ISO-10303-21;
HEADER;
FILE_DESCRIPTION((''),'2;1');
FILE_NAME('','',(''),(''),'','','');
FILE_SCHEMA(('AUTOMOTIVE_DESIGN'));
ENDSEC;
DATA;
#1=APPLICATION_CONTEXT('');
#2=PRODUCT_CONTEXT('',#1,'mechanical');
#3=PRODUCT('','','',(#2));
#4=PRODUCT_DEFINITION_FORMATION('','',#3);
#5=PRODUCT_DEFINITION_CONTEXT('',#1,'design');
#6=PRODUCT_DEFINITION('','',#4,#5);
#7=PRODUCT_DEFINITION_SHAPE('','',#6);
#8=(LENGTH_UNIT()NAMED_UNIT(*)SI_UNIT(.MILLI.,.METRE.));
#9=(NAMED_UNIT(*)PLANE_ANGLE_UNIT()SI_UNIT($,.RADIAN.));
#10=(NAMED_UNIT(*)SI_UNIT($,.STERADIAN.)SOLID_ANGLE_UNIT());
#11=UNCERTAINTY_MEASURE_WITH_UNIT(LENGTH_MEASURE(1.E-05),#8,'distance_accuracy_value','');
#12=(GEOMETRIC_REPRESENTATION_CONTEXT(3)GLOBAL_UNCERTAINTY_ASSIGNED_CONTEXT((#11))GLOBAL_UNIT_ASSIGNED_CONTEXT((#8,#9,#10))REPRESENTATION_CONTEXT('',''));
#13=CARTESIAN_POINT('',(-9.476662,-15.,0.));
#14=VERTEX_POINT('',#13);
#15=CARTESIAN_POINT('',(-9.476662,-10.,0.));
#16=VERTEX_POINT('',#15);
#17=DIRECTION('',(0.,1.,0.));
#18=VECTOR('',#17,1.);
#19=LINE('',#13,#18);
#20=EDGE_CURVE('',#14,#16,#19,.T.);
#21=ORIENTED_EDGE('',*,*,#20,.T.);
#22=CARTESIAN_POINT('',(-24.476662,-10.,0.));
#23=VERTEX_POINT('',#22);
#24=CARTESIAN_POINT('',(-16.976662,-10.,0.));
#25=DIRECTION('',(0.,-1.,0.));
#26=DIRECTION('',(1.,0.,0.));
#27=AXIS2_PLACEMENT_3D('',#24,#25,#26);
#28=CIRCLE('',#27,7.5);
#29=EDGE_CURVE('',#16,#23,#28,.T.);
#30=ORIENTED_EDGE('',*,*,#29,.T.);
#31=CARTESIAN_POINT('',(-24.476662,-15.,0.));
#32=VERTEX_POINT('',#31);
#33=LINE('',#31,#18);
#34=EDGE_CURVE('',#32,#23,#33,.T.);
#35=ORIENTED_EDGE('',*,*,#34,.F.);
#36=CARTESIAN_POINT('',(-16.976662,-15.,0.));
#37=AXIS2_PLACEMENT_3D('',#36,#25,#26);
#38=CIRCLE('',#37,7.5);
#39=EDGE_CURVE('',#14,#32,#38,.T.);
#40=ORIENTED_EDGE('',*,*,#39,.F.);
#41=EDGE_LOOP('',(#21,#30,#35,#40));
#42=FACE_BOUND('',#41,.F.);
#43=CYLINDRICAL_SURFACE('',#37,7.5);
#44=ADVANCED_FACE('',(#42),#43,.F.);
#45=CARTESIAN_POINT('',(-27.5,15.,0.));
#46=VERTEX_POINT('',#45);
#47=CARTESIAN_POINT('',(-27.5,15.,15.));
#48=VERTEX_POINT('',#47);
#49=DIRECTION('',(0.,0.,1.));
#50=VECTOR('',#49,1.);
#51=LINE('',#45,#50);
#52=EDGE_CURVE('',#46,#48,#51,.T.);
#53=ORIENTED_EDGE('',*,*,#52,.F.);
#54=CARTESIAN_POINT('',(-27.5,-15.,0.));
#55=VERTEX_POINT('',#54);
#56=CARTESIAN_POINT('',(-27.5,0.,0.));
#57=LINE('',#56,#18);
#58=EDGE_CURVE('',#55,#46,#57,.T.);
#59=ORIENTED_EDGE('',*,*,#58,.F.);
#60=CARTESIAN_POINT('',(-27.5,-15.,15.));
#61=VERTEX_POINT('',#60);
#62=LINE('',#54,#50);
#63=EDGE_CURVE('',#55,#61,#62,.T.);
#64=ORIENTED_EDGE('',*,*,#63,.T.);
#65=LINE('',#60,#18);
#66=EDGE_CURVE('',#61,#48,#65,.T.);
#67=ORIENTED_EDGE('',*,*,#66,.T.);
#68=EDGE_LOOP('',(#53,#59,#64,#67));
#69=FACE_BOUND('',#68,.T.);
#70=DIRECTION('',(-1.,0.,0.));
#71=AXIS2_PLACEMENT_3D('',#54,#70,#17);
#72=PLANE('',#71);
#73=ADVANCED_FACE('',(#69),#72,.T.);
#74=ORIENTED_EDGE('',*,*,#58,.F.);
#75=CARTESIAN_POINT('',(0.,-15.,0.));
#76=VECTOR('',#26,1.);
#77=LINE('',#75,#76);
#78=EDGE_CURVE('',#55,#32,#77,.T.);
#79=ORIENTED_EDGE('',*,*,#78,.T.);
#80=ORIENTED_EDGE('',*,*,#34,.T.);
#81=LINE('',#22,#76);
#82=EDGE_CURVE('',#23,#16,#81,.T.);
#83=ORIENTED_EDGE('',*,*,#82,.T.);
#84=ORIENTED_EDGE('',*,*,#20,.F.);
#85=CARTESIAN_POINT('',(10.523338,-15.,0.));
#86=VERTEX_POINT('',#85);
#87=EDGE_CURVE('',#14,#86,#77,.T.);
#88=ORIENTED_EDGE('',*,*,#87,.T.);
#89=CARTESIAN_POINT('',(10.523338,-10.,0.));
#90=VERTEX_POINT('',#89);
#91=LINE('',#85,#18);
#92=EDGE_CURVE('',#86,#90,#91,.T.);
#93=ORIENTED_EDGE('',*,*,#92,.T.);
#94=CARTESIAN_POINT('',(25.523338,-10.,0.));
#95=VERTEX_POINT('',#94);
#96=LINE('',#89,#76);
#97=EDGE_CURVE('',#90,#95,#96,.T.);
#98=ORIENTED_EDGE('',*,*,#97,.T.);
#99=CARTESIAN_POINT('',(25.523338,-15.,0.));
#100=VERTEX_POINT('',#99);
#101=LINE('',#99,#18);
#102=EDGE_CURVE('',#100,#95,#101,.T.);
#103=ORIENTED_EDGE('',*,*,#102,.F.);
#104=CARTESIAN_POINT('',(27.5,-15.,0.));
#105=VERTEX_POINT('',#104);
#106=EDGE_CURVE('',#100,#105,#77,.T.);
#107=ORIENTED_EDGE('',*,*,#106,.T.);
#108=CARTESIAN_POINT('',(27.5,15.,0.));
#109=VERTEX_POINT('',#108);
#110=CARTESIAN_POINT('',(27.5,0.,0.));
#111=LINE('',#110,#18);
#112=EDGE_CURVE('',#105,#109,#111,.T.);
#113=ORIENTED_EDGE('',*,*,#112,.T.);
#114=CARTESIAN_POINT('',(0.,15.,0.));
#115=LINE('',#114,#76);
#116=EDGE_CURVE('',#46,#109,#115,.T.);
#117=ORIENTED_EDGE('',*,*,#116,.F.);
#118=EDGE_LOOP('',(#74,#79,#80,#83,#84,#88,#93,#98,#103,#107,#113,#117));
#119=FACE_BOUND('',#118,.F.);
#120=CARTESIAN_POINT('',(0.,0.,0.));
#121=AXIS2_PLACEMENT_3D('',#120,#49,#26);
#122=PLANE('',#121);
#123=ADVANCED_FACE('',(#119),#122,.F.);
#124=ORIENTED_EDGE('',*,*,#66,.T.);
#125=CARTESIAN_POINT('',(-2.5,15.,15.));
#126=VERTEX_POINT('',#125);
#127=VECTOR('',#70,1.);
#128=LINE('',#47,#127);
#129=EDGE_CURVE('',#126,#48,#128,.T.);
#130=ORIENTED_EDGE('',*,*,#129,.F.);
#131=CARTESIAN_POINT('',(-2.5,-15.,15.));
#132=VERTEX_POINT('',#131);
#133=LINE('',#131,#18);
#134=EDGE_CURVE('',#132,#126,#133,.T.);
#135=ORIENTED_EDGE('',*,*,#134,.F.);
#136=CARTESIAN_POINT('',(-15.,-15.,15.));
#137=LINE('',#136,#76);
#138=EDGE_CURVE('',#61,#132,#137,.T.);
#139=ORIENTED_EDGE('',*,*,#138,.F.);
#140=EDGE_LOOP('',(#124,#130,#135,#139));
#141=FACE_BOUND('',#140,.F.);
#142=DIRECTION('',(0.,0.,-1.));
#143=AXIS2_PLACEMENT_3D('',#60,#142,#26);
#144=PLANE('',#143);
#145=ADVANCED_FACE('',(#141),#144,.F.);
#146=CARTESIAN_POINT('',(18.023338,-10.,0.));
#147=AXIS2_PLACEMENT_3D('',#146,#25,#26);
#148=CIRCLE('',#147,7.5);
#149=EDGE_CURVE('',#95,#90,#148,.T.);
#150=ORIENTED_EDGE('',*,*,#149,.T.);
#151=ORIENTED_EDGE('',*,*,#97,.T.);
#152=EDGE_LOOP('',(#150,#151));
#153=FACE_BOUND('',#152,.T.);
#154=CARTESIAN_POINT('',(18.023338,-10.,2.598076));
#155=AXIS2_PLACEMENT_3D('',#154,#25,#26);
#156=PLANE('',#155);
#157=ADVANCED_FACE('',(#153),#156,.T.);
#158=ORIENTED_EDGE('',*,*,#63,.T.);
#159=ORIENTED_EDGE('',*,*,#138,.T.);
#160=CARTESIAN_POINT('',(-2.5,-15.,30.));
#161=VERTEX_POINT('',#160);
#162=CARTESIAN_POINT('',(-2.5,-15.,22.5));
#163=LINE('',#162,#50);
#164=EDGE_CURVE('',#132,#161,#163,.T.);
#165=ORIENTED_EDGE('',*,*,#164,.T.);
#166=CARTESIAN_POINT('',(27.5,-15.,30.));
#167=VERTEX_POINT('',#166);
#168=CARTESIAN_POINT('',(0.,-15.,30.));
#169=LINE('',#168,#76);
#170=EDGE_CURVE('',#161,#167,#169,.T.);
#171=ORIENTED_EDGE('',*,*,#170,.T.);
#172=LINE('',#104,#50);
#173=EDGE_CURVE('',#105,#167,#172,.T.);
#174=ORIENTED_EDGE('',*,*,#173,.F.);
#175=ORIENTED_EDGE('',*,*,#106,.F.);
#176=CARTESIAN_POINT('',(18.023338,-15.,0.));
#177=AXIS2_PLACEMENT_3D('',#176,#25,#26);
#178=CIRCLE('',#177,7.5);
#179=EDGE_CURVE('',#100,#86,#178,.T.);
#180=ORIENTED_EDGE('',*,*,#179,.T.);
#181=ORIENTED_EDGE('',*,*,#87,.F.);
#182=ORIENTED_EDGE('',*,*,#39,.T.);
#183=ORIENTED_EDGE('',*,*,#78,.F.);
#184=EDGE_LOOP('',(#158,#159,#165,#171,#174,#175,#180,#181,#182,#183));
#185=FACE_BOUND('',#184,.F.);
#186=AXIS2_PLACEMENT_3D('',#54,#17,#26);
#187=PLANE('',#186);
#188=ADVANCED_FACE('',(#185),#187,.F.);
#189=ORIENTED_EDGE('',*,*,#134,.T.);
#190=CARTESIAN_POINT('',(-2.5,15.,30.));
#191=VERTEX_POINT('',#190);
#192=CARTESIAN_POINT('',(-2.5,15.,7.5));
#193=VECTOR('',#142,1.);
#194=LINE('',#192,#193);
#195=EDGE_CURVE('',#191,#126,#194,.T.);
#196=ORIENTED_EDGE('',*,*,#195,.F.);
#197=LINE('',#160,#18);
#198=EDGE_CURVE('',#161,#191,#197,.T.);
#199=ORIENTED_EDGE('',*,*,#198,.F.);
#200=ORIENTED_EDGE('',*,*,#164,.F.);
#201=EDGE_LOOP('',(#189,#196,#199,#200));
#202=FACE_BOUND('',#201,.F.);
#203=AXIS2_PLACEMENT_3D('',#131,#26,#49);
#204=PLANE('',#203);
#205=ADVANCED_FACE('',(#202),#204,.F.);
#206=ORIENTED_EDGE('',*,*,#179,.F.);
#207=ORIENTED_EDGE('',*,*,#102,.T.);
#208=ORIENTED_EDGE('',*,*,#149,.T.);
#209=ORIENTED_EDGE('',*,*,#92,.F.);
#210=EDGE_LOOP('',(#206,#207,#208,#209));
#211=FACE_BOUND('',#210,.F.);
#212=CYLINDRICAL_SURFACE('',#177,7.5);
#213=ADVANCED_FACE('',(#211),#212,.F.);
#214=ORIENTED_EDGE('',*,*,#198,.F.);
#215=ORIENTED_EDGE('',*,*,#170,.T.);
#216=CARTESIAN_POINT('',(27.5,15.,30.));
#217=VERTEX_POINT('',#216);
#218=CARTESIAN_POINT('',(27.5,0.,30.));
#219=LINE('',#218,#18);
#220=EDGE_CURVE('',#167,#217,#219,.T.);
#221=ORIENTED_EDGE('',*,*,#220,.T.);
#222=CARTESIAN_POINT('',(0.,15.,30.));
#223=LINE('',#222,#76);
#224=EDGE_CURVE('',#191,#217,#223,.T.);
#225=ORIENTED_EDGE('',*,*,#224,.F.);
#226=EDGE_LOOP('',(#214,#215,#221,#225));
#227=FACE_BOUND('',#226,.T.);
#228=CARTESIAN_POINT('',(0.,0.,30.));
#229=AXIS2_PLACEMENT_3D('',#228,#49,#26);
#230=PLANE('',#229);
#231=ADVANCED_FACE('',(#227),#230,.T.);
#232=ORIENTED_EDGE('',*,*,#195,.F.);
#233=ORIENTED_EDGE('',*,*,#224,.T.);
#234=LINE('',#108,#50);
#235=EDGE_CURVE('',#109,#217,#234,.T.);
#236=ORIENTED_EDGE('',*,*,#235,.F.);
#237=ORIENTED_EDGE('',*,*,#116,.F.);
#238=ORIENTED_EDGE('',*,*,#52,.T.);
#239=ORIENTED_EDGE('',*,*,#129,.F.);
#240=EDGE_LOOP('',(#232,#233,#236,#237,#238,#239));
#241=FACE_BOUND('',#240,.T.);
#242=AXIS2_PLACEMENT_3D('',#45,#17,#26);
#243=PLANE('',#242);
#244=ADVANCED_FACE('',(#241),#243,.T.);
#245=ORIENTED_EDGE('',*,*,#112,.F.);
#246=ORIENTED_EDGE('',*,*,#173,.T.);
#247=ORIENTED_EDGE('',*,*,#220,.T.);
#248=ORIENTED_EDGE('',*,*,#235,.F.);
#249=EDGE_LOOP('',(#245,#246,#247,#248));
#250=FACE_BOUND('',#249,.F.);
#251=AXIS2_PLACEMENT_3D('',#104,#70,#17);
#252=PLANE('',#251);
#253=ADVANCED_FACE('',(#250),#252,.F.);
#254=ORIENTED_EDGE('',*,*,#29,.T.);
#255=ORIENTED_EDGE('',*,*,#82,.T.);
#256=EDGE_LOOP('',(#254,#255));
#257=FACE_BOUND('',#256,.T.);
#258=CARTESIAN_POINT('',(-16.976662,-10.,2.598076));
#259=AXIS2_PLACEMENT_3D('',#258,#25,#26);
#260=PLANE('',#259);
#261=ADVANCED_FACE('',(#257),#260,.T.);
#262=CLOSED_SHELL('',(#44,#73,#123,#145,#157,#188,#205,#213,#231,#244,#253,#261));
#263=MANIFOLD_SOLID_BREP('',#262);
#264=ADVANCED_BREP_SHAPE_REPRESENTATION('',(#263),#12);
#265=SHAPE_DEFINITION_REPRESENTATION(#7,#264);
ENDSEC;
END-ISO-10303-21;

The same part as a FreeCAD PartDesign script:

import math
import FreeCAD as App
import Part
import Sketcher
from FreeCAD import Vector


def add_polygon(sketch, points):
    """Adds a closed chain of lines whose ends are joined by coincident constraints."""
    first, n = sketch.GeometryCount, len(points)
    for a, b in zip(points, points[1:] + points[:1]):
        sketch.addGeometry(Part.LineSegment(App.Vector(*a, 0), App.Vector(*b, 0)), False)
    for i in range(n):
        sketch.addConstraint(Sketcher.Constraint("Coincident", first + i, 2, first + (i + 1) % n, 1))

doc = App.newDocument("Part")
body = doc.addObject("PartDesign::Body", "Body")

# Sketch on XY plane
sketch1 = doc.addObject("Sketcher::SketchObject", "Sketch")
body.addObject(sketch1)
sketch1.AttachmentSupport = (doc.XY_Plane, [""])
sketch1.MapMode = "FlatFace"
add_polygon(sketch1, [(-28, 15), (-28, -15), (28, -15), (28, 15)])  # lines 0-3
sketch1.addConstraint(Sketcher.Constraint("Vertical", 0))
sketch1.addConstraint(Sketcher.Constraint("Horizontal", 1))
sketch1.addConstraint(Sketcher.Constraint("Vertical", 2))
sketch1.addConstraint(Sketcher.Constraint("Horizontal", 3))
sketch1.addConstraint(Sketcher.Constraint("Symmetric", 0, 2, 2, 2, -1, 1))
sketch1.addConstraint(Sketcher.Constraint("DistanceX", 1, 1, 1, 2, 55.0))
sketch1.addConstraint(Sketcher.Constraint("DistanceY", 0, 2, 0, 1, 30.0))
pad1 = doc.addObject("PartDesign::Pad", "Pad")
body.addObject(pad1)
pad1.Profile = sketch1
pad1.Length = 30

# Sketch on XZ plane
sketch2 = doc.addObject("Sketcher::SketchObject", "Sketch001")
body.addObject(sketch2)
sketch2.AttachmentSupport = (doc.XZ_Plane, [""])
sketch2.MapMode = "FlatFace"
sketch2.AttachmentOffset = App.Placement(Vector(0, 0, 15), App.Rotation())
add_polygon(sketch2, [(-28, 30), (-28, 15), (-2, 15), (-2, 30)])  # lines 0-3
sketch2.addConstraint(Sketcher.Constraint("Vertical", 0))
sketch2.addConstraint(Sketcher.Constraint("Horizontal", 1))
sketch2.addConstraint(Sketcher.Constraint("Vertical", 2))
sketch2.addConstraint(Sketcher.Constraint("Horizontal", 3))
sketch2.addConstraint(Sketcher.Constraint("DistanceX", 1, 1, 1, 2, 25.0))
sketch2.addConstraint(Sketcher.Constraint("DistanceY", 0, 2, 0, 1, 15.0))
sketch2.addConstraint(Sketcher.Constraint("DistanceY", -1, 1, 0, 2, 15.0))
sketch2.addConstraint(Sketcher.Constraint("DistanceX", 0, 2, -1, 1, 27.5))
pocket1 = doc.addObject("PartDesign::Pocket", "Pocket")
body.addObject(pocket1)
pocket1.Profile = sketch2
pocket1.Type = "ThroughAll"

# Sketch on XZ plane
sketch3 = doc.addObject("Sketcher::SketchObject", "Sketch002")
body.addObject(sketch3)
sketch3.AttachmentSupport = (doc.XZ_Plane, [""])
sketch3.MapMode = "FlatFace"
sketch3.AttachmentOffset = App.Placement(Vector(0, 0, 15), App.Rotation())
sketch3.addGeometry(Part.LineSegment(Vector(-24, 0, 0), Vector(-9, 0, 0)), False)
sketch3.addGeometry(Part.ArcOfCircle(Part.Circle(Vector(-17, 0, 0), Vector(0, 0, 1), 8), math.radians(0), math.radians(180)), False)
sketch3.addGeometry(Part.ArcOfCircle(Part.Circle(Vector(18, 0, 0), Vector(0, 0, 1), 8), math.radians(0), math.radians(180)), False)
sketch3.addGeometry(Part.LineSegment(Vector(11, 0, 0), Vector(26, 0, 0)), False)
sketch3.addConstraint(Sketcher.Constraint("Coincident", 0, 1, 1, 2))
sketch3.addConstraint(Sketcher.Constraint("Coincident", 1, 1, 0, 2))
sketch3.addConstraint(Sketcher.Constraint("Coincident", 2, 1, 3, 2))
sketch3.addConstraint(Sketcher.Constraint("Coincident", 3, 1, 2, 2))
sketch3.addConstraint(Sketcher.Constraint("Horizontal", 0))
sketch3.addConstraint(Sketcher.Constraint("Horizontal", 3))
sketch3.addConstraint(Sketcher.Constraint("Equal", 1, 2))
sketch3.addConstraint(Sketcher.Constraint("PointOnObject", 1, 3, -1))
sketch3.addConstraint(Sketcher.Constraint("PointOnObject", 2, 3, -1))
sketch3.addConstraint(Sketcher.Constraint("PointOnObject", 0, 1, -1))
sketch3.addConstraint(Sketcher.Constraint("PointOnObject", 2, 1, -1))
sketch3.addConstraint(Sketcher.Constraint("Radius", 1, 7.5))
sketch3.addConstraint(Sketcher.Constraint("DistanceX", 1, 3, 2, 3, 35.0))
sketch3.addConstraint(Sketcher.Constraint("DistanceX", 1, 3, -1, 1, 16.976662))
pocket2 = doc.addObject("PartDesign::Pocket", "Pocket001")
body.addObject(pocket2)
pocket2.Profile = sketch3
pocket2.Length = 5

doc.recompute()
